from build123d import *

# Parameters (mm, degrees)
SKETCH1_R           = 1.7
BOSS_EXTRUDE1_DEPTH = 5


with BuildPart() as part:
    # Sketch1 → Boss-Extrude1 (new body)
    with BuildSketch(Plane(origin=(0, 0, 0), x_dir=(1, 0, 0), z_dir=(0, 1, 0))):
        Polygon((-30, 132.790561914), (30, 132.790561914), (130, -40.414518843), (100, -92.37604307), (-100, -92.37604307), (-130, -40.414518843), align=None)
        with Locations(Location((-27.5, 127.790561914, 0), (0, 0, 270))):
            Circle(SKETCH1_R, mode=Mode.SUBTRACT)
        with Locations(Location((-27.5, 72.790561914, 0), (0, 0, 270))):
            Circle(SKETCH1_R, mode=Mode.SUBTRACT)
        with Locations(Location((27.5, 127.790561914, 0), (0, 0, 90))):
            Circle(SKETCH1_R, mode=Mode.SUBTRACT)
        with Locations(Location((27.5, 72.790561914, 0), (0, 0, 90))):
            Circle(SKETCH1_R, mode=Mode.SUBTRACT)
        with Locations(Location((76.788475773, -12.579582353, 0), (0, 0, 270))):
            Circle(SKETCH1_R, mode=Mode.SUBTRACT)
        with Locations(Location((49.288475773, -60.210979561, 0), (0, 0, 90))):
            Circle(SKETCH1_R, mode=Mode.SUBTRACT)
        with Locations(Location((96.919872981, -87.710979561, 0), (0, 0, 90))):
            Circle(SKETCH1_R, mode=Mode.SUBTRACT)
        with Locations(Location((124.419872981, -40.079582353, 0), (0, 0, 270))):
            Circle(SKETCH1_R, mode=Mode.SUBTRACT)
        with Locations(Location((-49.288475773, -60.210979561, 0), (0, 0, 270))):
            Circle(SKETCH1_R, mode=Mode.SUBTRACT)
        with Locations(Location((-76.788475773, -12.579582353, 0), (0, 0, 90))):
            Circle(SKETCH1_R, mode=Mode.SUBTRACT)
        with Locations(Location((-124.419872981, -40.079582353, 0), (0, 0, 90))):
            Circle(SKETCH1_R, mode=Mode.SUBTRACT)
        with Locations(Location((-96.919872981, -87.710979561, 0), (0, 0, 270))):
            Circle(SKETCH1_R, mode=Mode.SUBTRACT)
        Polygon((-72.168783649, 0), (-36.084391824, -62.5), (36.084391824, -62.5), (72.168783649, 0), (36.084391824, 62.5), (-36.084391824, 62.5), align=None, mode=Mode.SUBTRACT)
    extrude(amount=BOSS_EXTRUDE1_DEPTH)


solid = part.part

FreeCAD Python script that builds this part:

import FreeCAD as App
import Part
import Sketcher
from FreeCAD import Vector
Q = App.Units.Quantity


def add_polygon(sketch, points):
    """Adds a closed chain of lines whose ends are joined by coincident constraints."""
    first, n = sketch.GeometryCount, len(points)
    for a, b in zip(points, points[1:] + points[:1]):
        sketch.addGeometry(Part.LineSegment(App.Vector(*a, 0), App.Vector(*b, 0)), False)
    for i in range(n):
        sketch.addConstraint(Sketcher.Constraint("Coincident", first + i, 2, first + (i + 1) % n, 1))

doc = App.newDocument("Part")
body = doc.addObject("PartDesign::Body", "Body")

# Sketch on XZ plane
sketch1 = doc.addObject("Sketcher::SketchObject", "Sketch")
body.addObject(sketch1)
sketch1.AttachmentSupport = (doc.XZ_Plane, [""])
sketch1.MapMode = "FlatFace"
add_polygon(sketch1, [(30, -132.8), (-30, -132.8), (-130, 40.4), (-100, 92.4), (100, 92.4), (130, 40.4)])  # lines 0-5
sketch1.addGeometry(Part.Circle(Vector(96.9, 87.7, 0), Vector(0, 0, 1), 1.7), False)  # 6
sketch1.addGeometry(Part.Circle(Vector(124.4, 40.1, 0), Vector(0, 0, 1), 1.7), False)  # 7
sketch1.addGeometry(Part.Circle(Vector(49.3, 60.2, 0), Vector(0, 0, 1), 1.7), False)  # 8
sketch1.addGeometry(Part.Circle(Vector(76.8, 12.6, 0), Vector(0, 0, 1), 1.7), False)  # 9
add_polygon(sketch1, [(-72.2, 0), (-36.1, -62.5), (36.1, -62.5), (72.2, 0), (36.1, 62.5), (-36.1, 62.5)])  # lines 10-15
sketch1.addGeometry(Part.Circle(Vector(-49.3, 60.2, 0), Vector(0, 0, 1), 1.7), False)  # 16
sketch1.addGeometry(Part.Circle(Vector(-96.9, 87.7, 0), Vector(0, 0, 1), 1.7), False)  # 17
sketch1.addGeometry(Part.Circle(Vector(-124.4, 40.1, 0), Vector(0, 0, 1), 1.7), False)  # 18
sketch1.addGeometry(Part.Circle(Vector(-76.8, 12.6, 0), Vector(0, 0, 1), 1.7), False)  # 19
sketch1.addGeometry(Part.Circle(Vector(27.5, -72.8, 0), Vector(0, 0, 1), 1.7), False)  # 20
sketch1.addGeometry(Part.Circle(Vector(27.5, -127.8, 0), Vector(0, 0, 1), 1.7), False)  # 21
sketch1.addGeometry(Part.Circle(Vector(-27.5, -72.8, 0), Vector(0, 0, 1), 1.7), False)  # 22
sketch1.addGeometry(Part.Circle(Vector(-27.5, -127.8, 0), Vector(0, 0, 1), 1.7), False)  # 23
sketch1.addConstraint([
    Sketcher.Constraint("Horizontal", 0),
    Sketcher.Constraint("Horizontal", 3),
    Sketcher.Constraint("Horizontal", 11),
    Sketcher.Constraint("Horizontal", 14),
    Sketcher.Constraint("Equal", 6, 7),
    Sketcher.Constraint("Equal", 7, 8),
    Sketcher.Constraint("Equal", 8, 9),
    Sketcher.Constraint("Equal", 9, 16),
    Sketcher.Constraint("Equal", 16, 17),
    Sketcher.Constraint("Equal", 17, 18),
    Sketcher.Constraint("Equal", 18, 19),
    Sketcher.Constraint("Equal", 19, 20),
    Sketcher.Constraint("Equal", 20, 21),
    Sketcher.Constraint("Equal", 21, 22),
    Sketcher.Constraint("Equal", 22, 23),
    Sketcher.Constraint("Symmetric", 10, 2, 13, 2, -1, 1),
    Sketcher.Constraint("Symmetric", 12, 2, 15, 2, -1, 1),
    Sketcher.Constraint("Symmetric", 8, 3, 16, 3, -2),
    Sketcher.Constraint("Symmetric", 6, 3, 17, 3, -2),
    Sketcher.Constraint("Symmetric", 7, 3, 18, 3, -2),
    Sketcher.Constraint("Symmetric", 9, 3, 19, 3, -2),
    Sketcher.Constraint("Symmetric", 20, 3, 22, 3, -2),
    Sketcher.Constraint("Symmetric", 21, 3, 23, 3, -2),
    Sketcher.Constraint("Symmetric", 1, 2, 4, 2, -2),
    Sketcher.Constraint("PointOnObject", 12, 2, -1),
    Sketcher.Constraint("Parallel", 1, 4),
    Sketcher.Constraint("Parallel", 2, 5),
    Sketcher.Constraint("Parallel", 4, 10),
    Sketcher.Constraint("Parallel", 5, 12),
    Sketcher.Constraint("Parallel", 12, 15),
    Sketcher.Constraint("Vertical", 20, 3, 21, 3),
    Sketcher.Constraint("Vertical", 11, 2, 13, 2),
    Sketcher.Constraint("Diameter", 6, Q("3.4 mm")),
    Sketcher.Constraint("DistanceX", 0, 2, 0, 1, Q("60 mm")),
    Sketcher.Constraint("DistanceX", 3, 1, 3, 2, Q("200 mm")),
    Sketcher.Constraint("Angle", 1, Q("120 deg")),
    Sketcher.Constraint("Distance", 1, Q("200 mm")),
    Sketcher.Constraint("DistanceY", 21, 3, 20, 3, Q("55 mm")),
    Sketcher.Constraint("DistanceX", 22, 3, 20, 3, Q("55 mm")),
    Sketcher.Constraint("DistanceY", 0, 2, 23, 3, Q("5 mm")),
    Sketcher.Constraint("DistanceY", 10, 2, -1, 1, Q("62.5 mm")),
    Sketcher.Constraint("DistanceX", 6, 3, 7, 3, Q("27.5 mm")),
    Sketcher.Constraint("DistanceY", 8, 3, 6, 3, Q("27.5 mm")),
    Sketcher.Constraint("DistanceY", 9, 3, 7, 3, Q("27.5 mm")),
    Sketcher.Constraint("DistanceX", 8, 3, 9, 3, Q("27.5 mm")),
    Sketcher.Constraint("DistanceX", 11, 1, 11, 2, Q("72.168784 mm")),
    Sketcher.Constraint("DistanceY", -1, 1, 6, 3, Q("87.71098 mm")),
    Sketcher.Constraint("DistanceY", 20, 3, -1, 1, Q("72.790562 mm")),
    Sketcher.Constraint("DistanceX", 16, 3, 8, 3, Q("98.576952 mm")),
    Sketcher.Constraint("DistanceX", 16, 3, 6, 3, Q("146.208349 mm")),
    Sketcher.Constraint("DistanceY", 18, 3, 2, 2, Q("52.296461 mm")),
])
pad1 = doc.addObject("PartDesign::Pad", "Pad")
body.addObject(pad1)
pad1.Profile = sketch1
pad1.Length = 5
pad1.Reversed = True

doc.recompute()
